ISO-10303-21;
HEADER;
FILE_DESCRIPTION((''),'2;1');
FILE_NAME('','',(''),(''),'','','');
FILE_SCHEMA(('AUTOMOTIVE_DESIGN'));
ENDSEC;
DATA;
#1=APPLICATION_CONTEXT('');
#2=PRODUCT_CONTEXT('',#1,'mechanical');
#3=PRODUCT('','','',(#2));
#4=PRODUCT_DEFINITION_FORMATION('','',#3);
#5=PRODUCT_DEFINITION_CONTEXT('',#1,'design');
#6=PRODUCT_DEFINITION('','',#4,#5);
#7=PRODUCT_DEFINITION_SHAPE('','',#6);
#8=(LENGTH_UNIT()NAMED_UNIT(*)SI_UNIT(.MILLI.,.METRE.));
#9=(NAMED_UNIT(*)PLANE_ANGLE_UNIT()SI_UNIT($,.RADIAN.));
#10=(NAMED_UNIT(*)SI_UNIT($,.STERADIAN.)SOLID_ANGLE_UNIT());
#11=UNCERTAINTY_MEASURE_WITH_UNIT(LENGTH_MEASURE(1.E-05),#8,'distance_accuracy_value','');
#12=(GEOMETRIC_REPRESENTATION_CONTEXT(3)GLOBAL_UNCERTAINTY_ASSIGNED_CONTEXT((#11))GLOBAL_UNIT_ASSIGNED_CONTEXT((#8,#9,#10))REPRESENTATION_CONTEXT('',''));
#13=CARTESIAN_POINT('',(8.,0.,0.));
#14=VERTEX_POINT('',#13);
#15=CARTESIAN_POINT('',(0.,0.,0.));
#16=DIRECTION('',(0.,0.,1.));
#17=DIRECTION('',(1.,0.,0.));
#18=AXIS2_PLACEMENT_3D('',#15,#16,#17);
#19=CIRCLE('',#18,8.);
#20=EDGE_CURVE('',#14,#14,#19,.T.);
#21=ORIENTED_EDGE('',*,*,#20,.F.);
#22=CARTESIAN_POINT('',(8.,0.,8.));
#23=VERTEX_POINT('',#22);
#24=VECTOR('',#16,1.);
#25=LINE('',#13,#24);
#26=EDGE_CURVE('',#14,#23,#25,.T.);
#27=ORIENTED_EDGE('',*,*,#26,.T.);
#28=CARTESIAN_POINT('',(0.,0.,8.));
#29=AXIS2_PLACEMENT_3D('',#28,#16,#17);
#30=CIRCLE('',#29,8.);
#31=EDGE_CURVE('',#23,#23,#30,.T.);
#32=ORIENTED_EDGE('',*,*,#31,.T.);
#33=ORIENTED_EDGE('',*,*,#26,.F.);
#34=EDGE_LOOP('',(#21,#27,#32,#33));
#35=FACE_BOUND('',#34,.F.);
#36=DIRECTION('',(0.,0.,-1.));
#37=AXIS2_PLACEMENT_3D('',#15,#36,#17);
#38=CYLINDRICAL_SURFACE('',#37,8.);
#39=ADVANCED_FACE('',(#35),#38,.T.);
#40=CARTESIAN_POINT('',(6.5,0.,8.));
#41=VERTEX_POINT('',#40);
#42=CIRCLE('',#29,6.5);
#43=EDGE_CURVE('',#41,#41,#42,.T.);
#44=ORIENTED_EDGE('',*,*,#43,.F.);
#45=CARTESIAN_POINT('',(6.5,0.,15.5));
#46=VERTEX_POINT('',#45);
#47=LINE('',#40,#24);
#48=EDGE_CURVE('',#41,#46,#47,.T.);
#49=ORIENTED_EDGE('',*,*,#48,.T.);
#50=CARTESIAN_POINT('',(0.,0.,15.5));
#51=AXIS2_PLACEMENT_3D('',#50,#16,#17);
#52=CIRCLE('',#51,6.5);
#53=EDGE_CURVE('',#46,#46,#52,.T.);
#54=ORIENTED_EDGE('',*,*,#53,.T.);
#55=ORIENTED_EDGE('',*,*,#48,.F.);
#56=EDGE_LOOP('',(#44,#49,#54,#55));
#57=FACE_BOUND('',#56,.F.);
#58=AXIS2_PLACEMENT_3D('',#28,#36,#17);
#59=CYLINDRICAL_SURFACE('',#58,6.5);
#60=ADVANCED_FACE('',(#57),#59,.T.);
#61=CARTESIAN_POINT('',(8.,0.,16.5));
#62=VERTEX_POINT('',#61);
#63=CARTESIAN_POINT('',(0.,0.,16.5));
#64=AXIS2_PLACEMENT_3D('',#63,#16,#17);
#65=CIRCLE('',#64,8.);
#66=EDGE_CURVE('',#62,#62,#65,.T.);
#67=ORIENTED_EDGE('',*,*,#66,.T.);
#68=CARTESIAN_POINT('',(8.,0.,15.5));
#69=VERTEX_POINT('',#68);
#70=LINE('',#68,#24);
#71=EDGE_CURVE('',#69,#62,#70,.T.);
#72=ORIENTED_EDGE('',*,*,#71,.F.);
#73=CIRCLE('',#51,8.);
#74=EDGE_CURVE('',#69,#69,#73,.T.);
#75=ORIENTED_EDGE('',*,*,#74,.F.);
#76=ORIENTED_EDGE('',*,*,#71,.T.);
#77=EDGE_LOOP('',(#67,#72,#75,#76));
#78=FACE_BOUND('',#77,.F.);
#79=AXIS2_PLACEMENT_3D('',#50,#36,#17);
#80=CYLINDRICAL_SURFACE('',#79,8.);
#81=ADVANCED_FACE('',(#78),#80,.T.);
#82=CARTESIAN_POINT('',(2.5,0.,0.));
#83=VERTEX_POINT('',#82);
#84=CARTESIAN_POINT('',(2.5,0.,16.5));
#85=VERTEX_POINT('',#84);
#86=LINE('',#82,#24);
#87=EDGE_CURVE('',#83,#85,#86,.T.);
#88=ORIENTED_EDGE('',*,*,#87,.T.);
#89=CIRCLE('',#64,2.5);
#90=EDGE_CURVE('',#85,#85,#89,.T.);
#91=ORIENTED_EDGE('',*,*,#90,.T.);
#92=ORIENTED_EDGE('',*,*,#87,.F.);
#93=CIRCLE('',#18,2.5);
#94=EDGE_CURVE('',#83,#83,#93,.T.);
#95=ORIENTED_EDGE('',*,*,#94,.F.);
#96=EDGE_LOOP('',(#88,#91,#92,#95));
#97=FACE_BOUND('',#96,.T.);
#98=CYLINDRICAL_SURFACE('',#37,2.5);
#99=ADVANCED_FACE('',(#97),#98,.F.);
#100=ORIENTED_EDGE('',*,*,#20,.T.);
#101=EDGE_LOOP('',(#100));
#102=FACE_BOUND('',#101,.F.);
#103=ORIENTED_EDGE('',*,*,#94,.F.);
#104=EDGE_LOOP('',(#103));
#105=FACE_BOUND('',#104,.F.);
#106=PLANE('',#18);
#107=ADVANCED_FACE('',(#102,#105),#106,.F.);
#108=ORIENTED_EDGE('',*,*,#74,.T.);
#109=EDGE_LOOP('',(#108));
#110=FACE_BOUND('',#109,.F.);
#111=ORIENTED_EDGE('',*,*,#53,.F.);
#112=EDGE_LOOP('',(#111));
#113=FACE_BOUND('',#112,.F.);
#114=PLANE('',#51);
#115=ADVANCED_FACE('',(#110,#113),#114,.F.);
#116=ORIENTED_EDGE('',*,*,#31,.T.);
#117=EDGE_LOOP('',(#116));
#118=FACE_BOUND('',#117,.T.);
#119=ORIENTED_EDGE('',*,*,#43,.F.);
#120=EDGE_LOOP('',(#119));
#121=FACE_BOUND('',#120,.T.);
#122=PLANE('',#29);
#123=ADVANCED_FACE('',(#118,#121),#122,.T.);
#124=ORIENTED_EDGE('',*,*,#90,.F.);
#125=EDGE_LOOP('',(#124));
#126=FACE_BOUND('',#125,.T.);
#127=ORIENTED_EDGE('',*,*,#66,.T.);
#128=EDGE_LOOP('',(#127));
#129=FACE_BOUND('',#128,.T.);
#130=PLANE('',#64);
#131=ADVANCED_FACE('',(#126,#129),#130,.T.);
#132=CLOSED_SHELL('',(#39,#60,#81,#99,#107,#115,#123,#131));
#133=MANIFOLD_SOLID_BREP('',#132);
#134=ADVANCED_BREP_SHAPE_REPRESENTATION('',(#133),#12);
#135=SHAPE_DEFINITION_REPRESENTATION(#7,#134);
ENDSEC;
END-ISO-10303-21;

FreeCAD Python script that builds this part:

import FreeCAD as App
import Part
import Sketcher
Q = App.Units.Quantity

doc = App.newDocument("Part")
body = doc.addObject("PartDesign::Body", "Body")

# Sketch on XY plane
sketch1 = body.newObject("Sketcher::SketchObject", "Sketch")
sketch1.AttachmentSupport = (doc.getObject("XY_Plane"), [""])
sketch1.MapMode = "FlatFace"
sketch1.addGeometry(Part.Circle(App.Vector(0, 0, 0), App.Vector(0, 0, 1), 8), False)
sketch1.addGeometry(Part.Circle(App.Vector(0, 0, 0), App.Vector(0, 0, 1), 2.5), False)
sketch1.addConstraint(Sketcher.Constraint("Coincident", 0, 3, -1, 1))
sketch1.addConstraint(Sketcher.Constraint("Coincident", 1, 3, -1, 1))
sketch1.addConstraint(Sketcher.Constraint("Diameter", 0, Q("16 mm")))
sketch1.addConstraint(Sketcher.Constraint("Diameter", 1, Q("5 mm")))
pad1 = body.newObject("PartDesign::Pad", "Pad")
pad1.Profile = sketch1
pad1.Length = 8

# Sketch on XY plane
sketch2 = body.newObject("Sketcher::SketchObject", "Sketch001")
sketch2.AttachmentSupport = (doc.getObject("XY_Plane"), [""])
sketch2.MapMode = "FlatFace"
sketch2.AttachmentOffset = App.Placement(App.Vector(0, 0, 8), App.Rotation())
sketch2.addGeometry(Part.Circle(App.Vector(0, 0, 0), App.Vector(0, 0, 1), 6.5), False)
sketch2.addGeometry(Part.Circle(App.Vector(0, 0, 0), App.Vector(0, 0, 1), 2.5), False)
sketch2.addConstraint(Sketcher.Constraint("Coincident", 0, 3, -1, 1))
sketch2.addConstraint(Sketcher.Constraint("Coincident", 1, 3, -1, 1))
sketch2.addConstraint(Sketcher.Constraint("Diameter", 0, Q("13 mm")))
sketch2.addConstraint(Sketcher.Constraint("Diameter", 1, Q("5 mm")))
pad2 = body.newObject("PartDesign::Pad", "Pad001")
pad2.Profile = sketch2
pad2.Length = 7.5

# Sketch on XY plane
sketch3 = body.newObject("Sketcher::SketchObject", "Sketch002")
sketch3.AttachmentSupport = (doc.getObject("XY_Plane"), [""])
sketch3.MapMode = "FlatFace"
sketch3.AttachmentOffset = App.Placement(App.Vector(0, 0, 15.5), App.Rotation())
sketch3.addGeometry(Part.Circle(App.Vector(0, 0, 0), App.Vector(0, 0, 1), 8), False)
sketch3.addGeometry(Part.Circle(App.Vector(0, 0, 0), App.Vector(0, 0, 1), 2.5), False)
sketch3.addConstraint(Sketcher.Constraint("Coincident", 0, 3, -1, 1))
sketch3.addConstraint(Sketcher.Constraint("Coincident", 1, 3, -1, 1))
sketch3.addConstraint(Sketcher.Constraint("Diameter", 0, Q("16 mm")))
sketch3.addConstraint(Sketcher.Constraint("Diameter", 1, Q("5 mm")))
pad3 = body.newObject("PartDesign::Pad", "Pad002")
pad3.Profile = sketch3
pad3.Length = 1

doc.recompute()
